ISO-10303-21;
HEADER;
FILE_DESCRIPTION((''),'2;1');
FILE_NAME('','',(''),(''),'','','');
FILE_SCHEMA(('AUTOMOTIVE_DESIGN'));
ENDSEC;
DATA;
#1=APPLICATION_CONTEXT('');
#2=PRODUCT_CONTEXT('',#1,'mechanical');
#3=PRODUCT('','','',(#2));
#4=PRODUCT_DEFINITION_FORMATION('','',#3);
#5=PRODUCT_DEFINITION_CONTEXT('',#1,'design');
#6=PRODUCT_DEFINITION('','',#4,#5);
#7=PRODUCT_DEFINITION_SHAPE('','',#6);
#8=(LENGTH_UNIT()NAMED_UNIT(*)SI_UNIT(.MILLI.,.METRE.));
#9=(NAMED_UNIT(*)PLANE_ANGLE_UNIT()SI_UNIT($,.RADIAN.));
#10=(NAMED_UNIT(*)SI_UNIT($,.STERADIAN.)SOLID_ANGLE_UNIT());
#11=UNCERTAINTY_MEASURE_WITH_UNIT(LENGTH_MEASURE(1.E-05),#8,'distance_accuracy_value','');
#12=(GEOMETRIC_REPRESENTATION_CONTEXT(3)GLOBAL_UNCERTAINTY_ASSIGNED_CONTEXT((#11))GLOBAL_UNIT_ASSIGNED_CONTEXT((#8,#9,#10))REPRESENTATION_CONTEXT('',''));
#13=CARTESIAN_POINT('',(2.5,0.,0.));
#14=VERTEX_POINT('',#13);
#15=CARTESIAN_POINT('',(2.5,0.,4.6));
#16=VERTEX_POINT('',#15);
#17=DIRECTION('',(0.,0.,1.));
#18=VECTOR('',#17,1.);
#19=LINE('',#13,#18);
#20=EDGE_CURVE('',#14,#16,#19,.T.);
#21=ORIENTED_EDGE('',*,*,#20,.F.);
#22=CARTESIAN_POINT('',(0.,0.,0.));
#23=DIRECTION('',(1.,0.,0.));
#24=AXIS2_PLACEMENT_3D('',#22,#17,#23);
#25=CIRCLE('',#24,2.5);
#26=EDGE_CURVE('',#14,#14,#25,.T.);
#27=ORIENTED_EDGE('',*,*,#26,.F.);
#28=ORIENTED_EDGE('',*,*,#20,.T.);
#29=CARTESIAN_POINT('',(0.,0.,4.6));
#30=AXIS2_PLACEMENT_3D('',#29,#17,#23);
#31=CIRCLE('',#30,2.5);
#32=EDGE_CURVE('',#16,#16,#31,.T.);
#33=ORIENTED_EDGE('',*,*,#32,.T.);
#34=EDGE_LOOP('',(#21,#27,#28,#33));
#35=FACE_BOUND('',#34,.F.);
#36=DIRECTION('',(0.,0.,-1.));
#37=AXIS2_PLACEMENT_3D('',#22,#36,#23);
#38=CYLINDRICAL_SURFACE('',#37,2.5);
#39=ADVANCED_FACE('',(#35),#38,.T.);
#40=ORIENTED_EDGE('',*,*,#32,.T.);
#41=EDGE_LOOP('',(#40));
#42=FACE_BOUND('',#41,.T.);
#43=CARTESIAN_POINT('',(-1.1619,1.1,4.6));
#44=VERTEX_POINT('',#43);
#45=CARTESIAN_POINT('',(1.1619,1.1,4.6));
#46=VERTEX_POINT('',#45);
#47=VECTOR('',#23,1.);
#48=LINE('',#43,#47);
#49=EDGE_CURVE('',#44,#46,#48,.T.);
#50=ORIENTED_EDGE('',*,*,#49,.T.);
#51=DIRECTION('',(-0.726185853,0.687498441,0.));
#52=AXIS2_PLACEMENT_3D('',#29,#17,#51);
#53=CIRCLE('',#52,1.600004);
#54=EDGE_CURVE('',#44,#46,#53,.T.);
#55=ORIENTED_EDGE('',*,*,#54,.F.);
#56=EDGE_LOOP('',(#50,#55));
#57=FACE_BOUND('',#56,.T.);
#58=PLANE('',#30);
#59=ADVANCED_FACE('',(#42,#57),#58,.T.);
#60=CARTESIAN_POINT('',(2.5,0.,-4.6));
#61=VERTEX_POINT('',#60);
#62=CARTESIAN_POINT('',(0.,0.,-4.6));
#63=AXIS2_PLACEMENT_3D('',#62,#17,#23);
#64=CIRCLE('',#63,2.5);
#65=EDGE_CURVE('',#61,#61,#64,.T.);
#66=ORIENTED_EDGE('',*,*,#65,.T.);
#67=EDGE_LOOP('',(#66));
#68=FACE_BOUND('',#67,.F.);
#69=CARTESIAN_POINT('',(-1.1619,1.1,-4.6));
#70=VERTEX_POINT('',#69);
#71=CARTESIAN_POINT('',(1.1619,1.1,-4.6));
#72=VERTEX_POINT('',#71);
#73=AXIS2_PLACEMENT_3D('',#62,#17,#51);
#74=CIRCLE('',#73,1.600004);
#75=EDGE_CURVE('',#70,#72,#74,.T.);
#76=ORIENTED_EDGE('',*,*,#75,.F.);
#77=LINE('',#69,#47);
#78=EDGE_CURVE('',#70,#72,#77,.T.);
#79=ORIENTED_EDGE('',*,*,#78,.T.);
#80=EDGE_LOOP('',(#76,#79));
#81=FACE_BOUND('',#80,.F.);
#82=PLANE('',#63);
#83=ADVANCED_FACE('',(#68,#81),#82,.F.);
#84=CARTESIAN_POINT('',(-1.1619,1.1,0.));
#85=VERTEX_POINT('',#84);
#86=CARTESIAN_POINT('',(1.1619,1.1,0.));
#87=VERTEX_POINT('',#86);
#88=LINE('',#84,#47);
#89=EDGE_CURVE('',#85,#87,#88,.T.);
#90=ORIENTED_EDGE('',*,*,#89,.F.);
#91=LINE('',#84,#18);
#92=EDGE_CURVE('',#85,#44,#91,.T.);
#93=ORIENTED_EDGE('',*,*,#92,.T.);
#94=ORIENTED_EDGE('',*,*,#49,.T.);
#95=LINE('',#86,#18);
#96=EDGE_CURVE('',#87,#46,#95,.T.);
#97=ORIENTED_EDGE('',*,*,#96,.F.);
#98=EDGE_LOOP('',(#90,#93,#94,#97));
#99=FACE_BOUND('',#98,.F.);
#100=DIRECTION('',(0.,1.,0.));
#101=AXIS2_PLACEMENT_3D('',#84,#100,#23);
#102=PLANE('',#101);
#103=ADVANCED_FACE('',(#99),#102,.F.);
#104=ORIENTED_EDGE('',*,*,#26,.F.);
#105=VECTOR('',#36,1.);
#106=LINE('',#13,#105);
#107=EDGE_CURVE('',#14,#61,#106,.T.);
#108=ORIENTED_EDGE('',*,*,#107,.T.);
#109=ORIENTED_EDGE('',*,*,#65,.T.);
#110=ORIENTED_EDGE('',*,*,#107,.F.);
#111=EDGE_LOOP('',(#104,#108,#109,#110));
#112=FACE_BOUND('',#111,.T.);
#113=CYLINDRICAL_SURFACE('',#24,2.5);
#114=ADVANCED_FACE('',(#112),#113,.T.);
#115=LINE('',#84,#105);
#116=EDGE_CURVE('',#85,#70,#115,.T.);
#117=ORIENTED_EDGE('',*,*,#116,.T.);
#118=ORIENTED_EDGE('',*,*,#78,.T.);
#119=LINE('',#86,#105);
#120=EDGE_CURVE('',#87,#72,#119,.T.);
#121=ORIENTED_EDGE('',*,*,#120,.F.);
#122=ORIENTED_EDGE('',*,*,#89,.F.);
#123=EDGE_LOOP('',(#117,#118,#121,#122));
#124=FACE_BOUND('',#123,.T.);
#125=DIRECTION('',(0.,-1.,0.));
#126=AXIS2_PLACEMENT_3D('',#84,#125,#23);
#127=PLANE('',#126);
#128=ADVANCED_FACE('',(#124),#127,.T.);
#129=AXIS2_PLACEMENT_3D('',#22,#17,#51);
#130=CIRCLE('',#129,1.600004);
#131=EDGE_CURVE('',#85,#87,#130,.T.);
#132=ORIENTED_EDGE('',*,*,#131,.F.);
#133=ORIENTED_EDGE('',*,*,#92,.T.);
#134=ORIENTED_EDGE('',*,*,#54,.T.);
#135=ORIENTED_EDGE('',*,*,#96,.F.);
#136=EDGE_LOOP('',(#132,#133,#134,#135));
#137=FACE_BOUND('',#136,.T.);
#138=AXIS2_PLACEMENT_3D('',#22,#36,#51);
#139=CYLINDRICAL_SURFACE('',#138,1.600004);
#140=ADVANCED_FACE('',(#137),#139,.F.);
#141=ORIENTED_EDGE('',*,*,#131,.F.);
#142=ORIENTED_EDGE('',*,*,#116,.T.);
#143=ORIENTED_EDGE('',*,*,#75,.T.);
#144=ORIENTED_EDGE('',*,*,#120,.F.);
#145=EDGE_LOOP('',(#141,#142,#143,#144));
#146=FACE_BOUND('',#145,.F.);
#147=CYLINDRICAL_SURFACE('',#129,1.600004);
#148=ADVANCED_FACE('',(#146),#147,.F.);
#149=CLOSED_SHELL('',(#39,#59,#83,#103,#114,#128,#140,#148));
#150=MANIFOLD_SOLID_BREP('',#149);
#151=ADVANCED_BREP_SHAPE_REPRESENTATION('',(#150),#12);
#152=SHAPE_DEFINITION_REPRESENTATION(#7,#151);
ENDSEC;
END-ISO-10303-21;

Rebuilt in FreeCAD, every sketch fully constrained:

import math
import FreeCAD as App
import Part
import Sketcher

V = App.Vector

doc = App.newDocument("Part")
body = doc.addObject("PartDesign::Body", "Body")

# Sketch on XY plane
sketch1 = body.newObject("Sketcher::SketchObject", "Sketch")
sketch1.AttachmentSupport = (doc.getObject("XY_Plane"), [""])
sketch1.MapMode = "FlatFace"
sketch1.addGeometry([
    Part.Circle(V(0, 0, 0), V(0, 0, 1), 2.5),
    Part.ArcOfCircle(Part.Circle(V(0, 0, 0), V(0, 0, 1), 1.600004), math.radians(136.567586), math.radians(403.432414)),
    Part.LineSegment(V(-1.1619, 1.1, 0), V(1.1619, 1.1, 0)),
], False)
sketch1.addConstraint([
    Sketcher.Constraint("Coincident", 1, 1, 2, 1),
    Sketcher.Constraint("Coincident", 2, 2, 1, 2),
    Sketcher.Constraint("Horizontal", 2),
    Sketcher.Constraint("Coincident", 0, 3, -1, 1),
    Sketcher.Constraint("Coincident", 1, 3, -1, 1),
    Sketcher.Constraint("Diameter", 0, 5.0),
    Sketcher.Constraint("Radius", 1, 1.6),
    Sketcher.Constraint("DistanceY", -1, 1, 1, 1, 1.1),
])
pad1 = body.newObject("PartDesign::Pad", "Pad")
pad1.Profile = sketch1
pad1.Length = 9.2
pad1.Midplane = True

doc.recompute()
